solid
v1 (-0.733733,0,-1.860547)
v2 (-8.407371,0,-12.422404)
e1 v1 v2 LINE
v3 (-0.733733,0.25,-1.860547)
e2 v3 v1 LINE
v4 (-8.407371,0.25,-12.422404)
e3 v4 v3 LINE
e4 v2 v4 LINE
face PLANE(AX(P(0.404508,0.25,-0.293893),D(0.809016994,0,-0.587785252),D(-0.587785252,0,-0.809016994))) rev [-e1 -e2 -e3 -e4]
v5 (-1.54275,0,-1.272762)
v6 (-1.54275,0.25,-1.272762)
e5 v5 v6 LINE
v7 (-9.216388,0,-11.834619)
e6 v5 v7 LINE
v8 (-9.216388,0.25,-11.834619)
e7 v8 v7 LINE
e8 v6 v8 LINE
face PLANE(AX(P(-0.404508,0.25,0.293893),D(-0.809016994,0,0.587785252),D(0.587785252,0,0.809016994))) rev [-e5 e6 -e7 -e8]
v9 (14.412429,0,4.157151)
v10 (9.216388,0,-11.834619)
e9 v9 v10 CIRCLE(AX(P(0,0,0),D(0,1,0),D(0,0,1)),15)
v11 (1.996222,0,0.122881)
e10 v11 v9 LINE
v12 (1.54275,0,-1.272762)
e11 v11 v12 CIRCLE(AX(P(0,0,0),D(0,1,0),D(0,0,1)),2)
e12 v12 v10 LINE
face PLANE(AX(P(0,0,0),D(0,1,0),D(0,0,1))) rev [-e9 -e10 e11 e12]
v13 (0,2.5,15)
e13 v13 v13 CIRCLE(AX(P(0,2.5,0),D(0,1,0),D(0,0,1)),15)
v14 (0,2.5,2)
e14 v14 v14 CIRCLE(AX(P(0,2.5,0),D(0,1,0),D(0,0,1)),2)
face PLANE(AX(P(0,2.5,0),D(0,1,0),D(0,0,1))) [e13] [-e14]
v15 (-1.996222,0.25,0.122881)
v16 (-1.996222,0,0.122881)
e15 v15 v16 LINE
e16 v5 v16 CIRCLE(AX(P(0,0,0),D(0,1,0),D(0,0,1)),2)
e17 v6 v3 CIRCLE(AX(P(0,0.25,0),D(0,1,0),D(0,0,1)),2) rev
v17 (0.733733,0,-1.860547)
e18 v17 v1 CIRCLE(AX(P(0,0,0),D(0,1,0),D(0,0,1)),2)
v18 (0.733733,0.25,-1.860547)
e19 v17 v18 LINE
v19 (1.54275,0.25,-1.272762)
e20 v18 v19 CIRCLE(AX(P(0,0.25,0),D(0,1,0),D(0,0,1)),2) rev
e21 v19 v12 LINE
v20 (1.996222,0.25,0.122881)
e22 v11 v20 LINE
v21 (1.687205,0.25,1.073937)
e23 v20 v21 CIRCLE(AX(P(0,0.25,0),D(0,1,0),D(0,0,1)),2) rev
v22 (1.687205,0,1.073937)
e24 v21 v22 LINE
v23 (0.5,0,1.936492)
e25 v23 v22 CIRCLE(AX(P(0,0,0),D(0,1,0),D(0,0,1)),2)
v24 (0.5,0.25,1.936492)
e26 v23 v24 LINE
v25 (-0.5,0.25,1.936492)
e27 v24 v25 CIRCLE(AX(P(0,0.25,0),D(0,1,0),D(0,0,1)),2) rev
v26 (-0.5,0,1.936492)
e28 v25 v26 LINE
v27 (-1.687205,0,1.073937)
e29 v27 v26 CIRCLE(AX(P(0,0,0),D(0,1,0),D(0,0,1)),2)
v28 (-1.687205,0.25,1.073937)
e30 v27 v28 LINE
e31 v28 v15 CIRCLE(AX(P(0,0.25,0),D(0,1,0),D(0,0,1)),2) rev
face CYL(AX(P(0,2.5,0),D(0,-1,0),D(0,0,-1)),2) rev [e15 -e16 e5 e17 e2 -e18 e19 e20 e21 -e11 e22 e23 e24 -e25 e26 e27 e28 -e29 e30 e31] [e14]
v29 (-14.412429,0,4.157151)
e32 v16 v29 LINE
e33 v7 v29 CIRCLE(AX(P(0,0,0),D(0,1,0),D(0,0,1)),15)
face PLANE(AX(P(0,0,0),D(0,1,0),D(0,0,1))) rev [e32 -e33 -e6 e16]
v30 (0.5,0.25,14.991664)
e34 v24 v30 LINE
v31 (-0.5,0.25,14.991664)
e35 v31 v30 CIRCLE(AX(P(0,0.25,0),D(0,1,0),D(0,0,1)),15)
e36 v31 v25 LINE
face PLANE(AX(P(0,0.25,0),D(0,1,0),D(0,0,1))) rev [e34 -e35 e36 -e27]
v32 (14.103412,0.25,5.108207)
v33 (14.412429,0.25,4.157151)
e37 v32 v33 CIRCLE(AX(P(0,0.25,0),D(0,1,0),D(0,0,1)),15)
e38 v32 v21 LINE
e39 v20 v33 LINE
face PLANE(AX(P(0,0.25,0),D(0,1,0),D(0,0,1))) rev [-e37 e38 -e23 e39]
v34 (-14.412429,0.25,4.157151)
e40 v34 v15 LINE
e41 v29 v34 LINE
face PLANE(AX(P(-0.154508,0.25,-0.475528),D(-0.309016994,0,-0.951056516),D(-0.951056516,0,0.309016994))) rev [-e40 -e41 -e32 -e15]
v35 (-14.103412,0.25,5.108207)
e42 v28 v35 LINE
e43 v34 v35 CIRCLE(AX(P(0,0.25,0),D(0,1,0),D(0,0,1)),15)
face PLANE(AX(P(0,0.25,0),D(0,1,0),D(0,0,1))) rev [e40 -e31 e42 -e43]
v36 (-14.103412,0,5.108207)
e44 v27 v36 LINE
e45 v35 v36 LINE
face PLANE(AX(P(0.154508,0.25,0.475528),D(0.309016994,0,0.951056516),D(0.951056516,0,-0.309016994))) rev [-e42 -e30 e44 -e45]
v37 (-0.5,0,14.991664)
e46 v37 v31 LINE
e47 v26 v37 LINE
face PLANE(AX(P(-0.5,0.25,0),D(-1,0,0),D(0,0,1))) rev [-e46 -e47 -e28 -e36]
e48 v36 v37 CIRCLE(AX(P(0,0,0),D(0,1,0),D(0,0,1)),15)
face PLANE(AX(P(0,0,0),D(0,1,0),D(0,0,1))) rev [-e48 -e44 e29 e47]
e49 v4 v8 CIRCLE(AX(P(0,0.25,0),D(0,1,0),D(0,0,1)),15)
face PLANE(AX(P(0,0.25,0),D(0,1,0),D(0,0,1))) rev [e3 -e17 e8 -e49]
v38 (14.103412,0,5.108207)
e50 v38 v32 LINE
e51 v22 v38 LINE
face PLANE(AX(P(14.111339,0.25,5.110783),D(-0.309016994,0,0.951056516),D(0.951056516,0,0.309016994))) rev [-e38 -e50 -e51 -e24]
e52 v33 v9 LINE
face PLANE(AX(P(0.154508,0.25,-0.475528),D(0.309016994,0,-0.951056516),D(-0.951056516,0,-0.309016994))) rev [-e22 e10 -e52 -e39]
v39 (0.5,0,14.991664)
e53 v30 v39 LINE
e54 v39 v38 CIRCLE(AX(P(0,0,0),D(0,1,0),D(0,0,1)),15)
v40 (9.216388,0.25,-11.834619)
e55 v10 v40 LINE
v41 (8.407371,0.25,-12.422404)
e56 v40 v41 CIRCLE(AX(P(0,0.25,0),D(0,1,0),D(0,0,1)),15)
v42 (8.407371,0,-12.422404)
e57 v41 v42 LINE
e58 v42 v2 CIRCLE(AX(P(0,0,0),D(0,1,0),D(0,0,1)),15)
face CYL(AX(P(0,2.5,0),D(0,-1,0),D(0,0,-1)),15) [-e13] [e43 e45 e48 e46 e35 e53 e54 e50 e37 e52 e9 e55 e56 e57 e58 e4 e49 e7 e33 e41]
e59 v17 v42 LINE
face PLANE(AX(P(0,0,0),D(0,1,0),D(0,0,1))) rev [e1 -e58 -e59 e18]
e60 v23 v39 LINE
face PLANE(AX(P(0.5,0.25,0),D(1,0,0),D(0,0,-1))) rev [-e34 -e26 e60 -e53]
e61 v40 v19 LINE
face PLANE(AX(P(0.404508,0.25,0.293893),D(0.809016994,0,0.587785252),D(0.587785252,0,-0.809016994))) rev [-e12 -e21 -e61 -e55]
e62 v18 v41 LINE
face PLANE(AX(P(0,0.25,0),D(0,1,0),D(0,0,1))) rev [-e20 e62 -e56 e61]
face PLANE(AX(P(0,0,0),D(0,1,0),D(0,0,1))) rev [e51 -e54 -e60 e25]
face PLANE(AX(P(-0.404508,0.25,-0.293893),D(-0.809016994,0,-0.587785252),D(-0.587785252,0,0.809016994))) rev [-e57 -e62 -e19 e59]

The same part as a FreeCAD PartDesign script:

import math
import FreeCAD as App
import Part
import Sketcher

V = App.Vector
Q = App.Units.Quantity

doc = App.newDocument("Part")
params = doc.addObject("Spreadsheet::Sheet", "Params")
for row, (alias, value) in enumerate([
    ("sketch1_diameter", "30 mm"),
    ("pad1_length", "2.5 mm"),
    ("pocket1_length", "0.25 mm"),
    ("sketch3_diameter", "4 mm"),
], start=1):
    params.set(f"A{row}", alias)
    params.set(f"B{row}", "=" + value)
    params.setAlias(f"B{row}", alias)

body = doc.addObject("PartDesign::Body", "Body")

sketch1 = doc.addObject("Sketcher::SketchObject", "Sketch")
body.addObject(sketch1)
sketch1.AttachmentSupport = (doc.XZ_Plane, [""])
sketch1.MapMode = "FlatFace"
sketch1.addGeometry(Part.Circle(V(0, 0, 0), V(0, 0, 1), 15), False)
sketch1.addConstraint(Sketcher.Constraint("Coincident", 0, 3, -1, 1))
sketch1.addConstraint(Sketcher.Constraint("Diameter", 0, Q("30 mm")))
sketch1.setExpression("Constraints[1]", "Params.sketch1_diameter")
pad1 = doc.addObject("PartDesign::Pad", "Pad")
body.addObject(pad1)
pad1.Profile = sketch1
pad1.setExpression("Length", "Params.pad1_length")
pad1.Reversed = True

sketch2 = doc.addObject("Sketcher::SketchObject", "Sketch001")
body.addObject(sketch2)
sketch2.AttachmentSupport = (doc.XZ_Plane, [""])
sketch2.MapMode = "FlatFace"
sketch2.addGeometry(Part.LineSegment(V(0, -0.9, 0), V(-8.4, -12.4, 0)), False)
sketch2.addGeometry(Part.ArcOfCircle(Part.Circle(V(0, 0, 0), V(0, 0, 1), 15), math.radians(-127.91), math.radians(-124.09)), False)
sketch2.addGeometry(Part.LineSegment(V(-9.2, -11.8, 0), V(-0.8, -0.3, 0)), False)
sketch2.addGeometry(Part.LineSegment(V(-0.8, -0.3, 0), V(-14.4, 4.2, 0)), False)
sketch2.addGeometry(Part.ArcOfCircle(Part.Circle(V(0, 0, 0), V(0, 0, 1), 15), math.radians(160.09), math.radians(163.91)), False)
sketch2.addGeometry(Part.LineSegment(V(-14.1, 5.1, 0), V(-0.5, 0.7, 0)), False)
sketch2.addGeometry(Part.LineSegment(V(-0.5, 0.7, 0), V(-0.5, 15, 0)), False)
sketch2.addGeometry(Part.ArcOfCircle(Part.Circle(V(0, 0, 0), V(0, 0, 1), 15), math.radians(88.09), math.radians(91.91)), False)
sketch2.addGeometry(Part.LineSegment(V(0.5, 15, 0), V(0.5, 0.7, 0)), False)
sketch2.addGeometry(Part.LineSegment(V(0.5, 0.7, 0), V(14.1, 5.1, 0)), False)
sketch2.addGeometry(Part.ArcOfCircle(Part.Circle(V(0, 0, 0), V(0, 0, 1), 15), math.radians(16.09), math.radians(19.91)), False)
sketch2.addGeometry(Part.LineSegment(V(14.4, 4.2, 0), V(0.8, -0.3, 0)), False)
sketch2.addGeometry(Part.LineSegment(V(0.8, -0.3, 0), V(9.2, -11.8, 0)), False)
sketch2.addGeometry(Part.ArcOfCircle(Part.Circle(V(0, 0, 0), V(0, 0, 1), 15), math.radians(-55.91), math.radians(-52.09)), False)
sketch2.addGeometry(Part.LineSegment(V(8.4, -12.4, 0), V(0, -0.9, 0)), False)
sketch2.addConstraint(Sketcher.Constraint("Coincident", 0, 2, 1, 2))
sketch2.addConstraint(Sketcher.Constraint("Coincident", 1, 1, 2, 1))
sketch2.addConstraint(Sketcher.Constraint("Coincident", 2, 2, 3, 1))
sketch2.addConstraint(Sketcher.Constraint("Coincident", 3, 2, 4, 2))
sketch2.addConstraint(Sketcher.Constraint("Coincident", 4, 1, 5, 1))
sketch2.addConstraint(Sketcher.Constraint("Coincident", 5, 2, 6, 1))
sketch2.addConstraint(Sketcher.Constraint("Coincident", 6, 2, 7, 2))
sketch2.addConstraint(Sketcher.Constraint("Coincident", 7, 1, 8, 1))
sketch2.addConstraint(Sketcher.Constraint("Coincident", 8, 2, 9, 1))
sketch2.addConstraint(Sketcher.Constraint("Coincident", 9, 2, 10, 2))
sketch2.addConstraint(Sketcher.Constraint("Coincident", 10, 1, 11, 1))
sketch2.addConstraint(Sketcher.Constraint("Coincident", 11, 2, 12, 1))
sketch2.addConstraint(Sketcher.Constraint("Coincident", 12, 2, 13, 2))
sketch2.addConstraint(Sketcher.Constraint("Coincident", 13, 1, 14, 1))
sketch2.addConstraint(Sketcher.Constraint("Coincident", 14, 2, 0, 1))
sketch2.addConstraint(Sketcher.Constraint("Vertical", 6))
sketch2.addConstraint(Sketcher.Constraint("Vertical", 8))
sketch2.addConstraint(Sketcher.Constraint("Coincident", 1, 3, -1, 1))
sketch2.addConstraint(Sketcher.Constraint("Coincident", 4, 3, -1, 1))
sketch2.addConstraint(Sketcher.Constraint("Coincident", 7, 3, -1, 1))
sketch2.addConstraint(Sketcher.Constraint("Coincident", 10, 3, -1, 1))
sketch2.addConstraint(Sketcher.Constraint("Coincident", 13, 3, -1, 1))
sketch2.addConstraint(Sketcher.Constraint("Equal", 1, 4))
sketch2.addConstraint(Sketcher.Constraint("Equal", 4, 7))
sketch2.addConstraint(Sketcher.Constraint("Equal", 7, 10))
sketch2.addConstraint(Sketcher.Constraint("Equal", 10, 13))
sketch2.addConstraint(Sketcher.Constraint("Symmetric", 5, 2, 8, 2, -2))
sketch2.addConstraint(Sketcher.Constraint("Symmetric", 2, 2, 11, 2, -2))
sketch2.addConstraint(Sketcher.Constraint("PointOnObject", 14, 2, -2))
sketch2.addConstraint(Sketcher.Constraint("Parallel", 0, 2))
sketch2.addConstraint(Sketcher.Constraint("Parallel", 3, 5))
sketch2.addConstraint(Sketcher.Constraint("Parallel", 9, 11))
sketch2.addConstraint(Sketcher.Constraint("Parallel", 12, 14))
sketch2.addConstraint(Sketcher.Constraint("Horizontal", 4, 1, 9, 2))
sketch2.addConstraint(Sketcher.Constraint("Horizontal", 1, 1, 12, 2))
sketch2.addConstraint(Sketcher.Constraint("Equal", 0, 2))
sketch2.addConstraint(Sketcher.Constraint("Equal", 2, 3))
sketch2.addConstraint(Sketcher.Constraint("Equal", 3, 5))
sketch2.addConstraint(Sketcher.Constraint("Angle", 0, Q("-126 deg")))
sketch2.addConstraint(Sketcher.Constraint("Angle", 3, Q("162 deg")))
sketch2.addConstraint(Sketcher.Constraint("DistanceY", -1, 1, 6, 2, Q("15 mm")))
sketch2.addConstraint(Sketcher.Constraint("DistanceX", 6, 2, 7, 1, Q("1 mm")))
sketch2.addConstraint(Sketcher.Constraint("DistanceY", 6, 1, 6, 2, Q("14.311809 mm")))
pocket1 = doc.addObject("PartDesign::Pocket", "Pocket")
body.addObject(pocket1)
pocket1.Profile = sketch2
pocket1.setExpression("Length", "Params.pocket1_length")

sketch3 = doc.addObject("Sketcher::SketchObject", "Sketch002")
body.addObject(sketch3)
sketch3.AttachmentSupport = (doc.XZ_Plane, [""])
sketch3.MapMode = "FlatFace"
sketch3.addGeometry(Part.Circle(V(0, 0, 0), V(0, 0, 1), 2), False)
sketch3.addConstraint(Sketcher.Constraint("Coincident", 0, 3, -1, 1))
sketch3.addConstraint(Sketcher.Constraint("Diameter", 0, Q("4 mm")))
sketch3.setExpression("Constraints[1]", "Params.sketch3_diameter")
pocket2 = doc.addObject("PartDesign::Pocket", "Pocket001")
body.addObject(pocket2)
pocket2.Profile = sketch3
pocket2.Type = "ThroughAll"

doc.recompute()
